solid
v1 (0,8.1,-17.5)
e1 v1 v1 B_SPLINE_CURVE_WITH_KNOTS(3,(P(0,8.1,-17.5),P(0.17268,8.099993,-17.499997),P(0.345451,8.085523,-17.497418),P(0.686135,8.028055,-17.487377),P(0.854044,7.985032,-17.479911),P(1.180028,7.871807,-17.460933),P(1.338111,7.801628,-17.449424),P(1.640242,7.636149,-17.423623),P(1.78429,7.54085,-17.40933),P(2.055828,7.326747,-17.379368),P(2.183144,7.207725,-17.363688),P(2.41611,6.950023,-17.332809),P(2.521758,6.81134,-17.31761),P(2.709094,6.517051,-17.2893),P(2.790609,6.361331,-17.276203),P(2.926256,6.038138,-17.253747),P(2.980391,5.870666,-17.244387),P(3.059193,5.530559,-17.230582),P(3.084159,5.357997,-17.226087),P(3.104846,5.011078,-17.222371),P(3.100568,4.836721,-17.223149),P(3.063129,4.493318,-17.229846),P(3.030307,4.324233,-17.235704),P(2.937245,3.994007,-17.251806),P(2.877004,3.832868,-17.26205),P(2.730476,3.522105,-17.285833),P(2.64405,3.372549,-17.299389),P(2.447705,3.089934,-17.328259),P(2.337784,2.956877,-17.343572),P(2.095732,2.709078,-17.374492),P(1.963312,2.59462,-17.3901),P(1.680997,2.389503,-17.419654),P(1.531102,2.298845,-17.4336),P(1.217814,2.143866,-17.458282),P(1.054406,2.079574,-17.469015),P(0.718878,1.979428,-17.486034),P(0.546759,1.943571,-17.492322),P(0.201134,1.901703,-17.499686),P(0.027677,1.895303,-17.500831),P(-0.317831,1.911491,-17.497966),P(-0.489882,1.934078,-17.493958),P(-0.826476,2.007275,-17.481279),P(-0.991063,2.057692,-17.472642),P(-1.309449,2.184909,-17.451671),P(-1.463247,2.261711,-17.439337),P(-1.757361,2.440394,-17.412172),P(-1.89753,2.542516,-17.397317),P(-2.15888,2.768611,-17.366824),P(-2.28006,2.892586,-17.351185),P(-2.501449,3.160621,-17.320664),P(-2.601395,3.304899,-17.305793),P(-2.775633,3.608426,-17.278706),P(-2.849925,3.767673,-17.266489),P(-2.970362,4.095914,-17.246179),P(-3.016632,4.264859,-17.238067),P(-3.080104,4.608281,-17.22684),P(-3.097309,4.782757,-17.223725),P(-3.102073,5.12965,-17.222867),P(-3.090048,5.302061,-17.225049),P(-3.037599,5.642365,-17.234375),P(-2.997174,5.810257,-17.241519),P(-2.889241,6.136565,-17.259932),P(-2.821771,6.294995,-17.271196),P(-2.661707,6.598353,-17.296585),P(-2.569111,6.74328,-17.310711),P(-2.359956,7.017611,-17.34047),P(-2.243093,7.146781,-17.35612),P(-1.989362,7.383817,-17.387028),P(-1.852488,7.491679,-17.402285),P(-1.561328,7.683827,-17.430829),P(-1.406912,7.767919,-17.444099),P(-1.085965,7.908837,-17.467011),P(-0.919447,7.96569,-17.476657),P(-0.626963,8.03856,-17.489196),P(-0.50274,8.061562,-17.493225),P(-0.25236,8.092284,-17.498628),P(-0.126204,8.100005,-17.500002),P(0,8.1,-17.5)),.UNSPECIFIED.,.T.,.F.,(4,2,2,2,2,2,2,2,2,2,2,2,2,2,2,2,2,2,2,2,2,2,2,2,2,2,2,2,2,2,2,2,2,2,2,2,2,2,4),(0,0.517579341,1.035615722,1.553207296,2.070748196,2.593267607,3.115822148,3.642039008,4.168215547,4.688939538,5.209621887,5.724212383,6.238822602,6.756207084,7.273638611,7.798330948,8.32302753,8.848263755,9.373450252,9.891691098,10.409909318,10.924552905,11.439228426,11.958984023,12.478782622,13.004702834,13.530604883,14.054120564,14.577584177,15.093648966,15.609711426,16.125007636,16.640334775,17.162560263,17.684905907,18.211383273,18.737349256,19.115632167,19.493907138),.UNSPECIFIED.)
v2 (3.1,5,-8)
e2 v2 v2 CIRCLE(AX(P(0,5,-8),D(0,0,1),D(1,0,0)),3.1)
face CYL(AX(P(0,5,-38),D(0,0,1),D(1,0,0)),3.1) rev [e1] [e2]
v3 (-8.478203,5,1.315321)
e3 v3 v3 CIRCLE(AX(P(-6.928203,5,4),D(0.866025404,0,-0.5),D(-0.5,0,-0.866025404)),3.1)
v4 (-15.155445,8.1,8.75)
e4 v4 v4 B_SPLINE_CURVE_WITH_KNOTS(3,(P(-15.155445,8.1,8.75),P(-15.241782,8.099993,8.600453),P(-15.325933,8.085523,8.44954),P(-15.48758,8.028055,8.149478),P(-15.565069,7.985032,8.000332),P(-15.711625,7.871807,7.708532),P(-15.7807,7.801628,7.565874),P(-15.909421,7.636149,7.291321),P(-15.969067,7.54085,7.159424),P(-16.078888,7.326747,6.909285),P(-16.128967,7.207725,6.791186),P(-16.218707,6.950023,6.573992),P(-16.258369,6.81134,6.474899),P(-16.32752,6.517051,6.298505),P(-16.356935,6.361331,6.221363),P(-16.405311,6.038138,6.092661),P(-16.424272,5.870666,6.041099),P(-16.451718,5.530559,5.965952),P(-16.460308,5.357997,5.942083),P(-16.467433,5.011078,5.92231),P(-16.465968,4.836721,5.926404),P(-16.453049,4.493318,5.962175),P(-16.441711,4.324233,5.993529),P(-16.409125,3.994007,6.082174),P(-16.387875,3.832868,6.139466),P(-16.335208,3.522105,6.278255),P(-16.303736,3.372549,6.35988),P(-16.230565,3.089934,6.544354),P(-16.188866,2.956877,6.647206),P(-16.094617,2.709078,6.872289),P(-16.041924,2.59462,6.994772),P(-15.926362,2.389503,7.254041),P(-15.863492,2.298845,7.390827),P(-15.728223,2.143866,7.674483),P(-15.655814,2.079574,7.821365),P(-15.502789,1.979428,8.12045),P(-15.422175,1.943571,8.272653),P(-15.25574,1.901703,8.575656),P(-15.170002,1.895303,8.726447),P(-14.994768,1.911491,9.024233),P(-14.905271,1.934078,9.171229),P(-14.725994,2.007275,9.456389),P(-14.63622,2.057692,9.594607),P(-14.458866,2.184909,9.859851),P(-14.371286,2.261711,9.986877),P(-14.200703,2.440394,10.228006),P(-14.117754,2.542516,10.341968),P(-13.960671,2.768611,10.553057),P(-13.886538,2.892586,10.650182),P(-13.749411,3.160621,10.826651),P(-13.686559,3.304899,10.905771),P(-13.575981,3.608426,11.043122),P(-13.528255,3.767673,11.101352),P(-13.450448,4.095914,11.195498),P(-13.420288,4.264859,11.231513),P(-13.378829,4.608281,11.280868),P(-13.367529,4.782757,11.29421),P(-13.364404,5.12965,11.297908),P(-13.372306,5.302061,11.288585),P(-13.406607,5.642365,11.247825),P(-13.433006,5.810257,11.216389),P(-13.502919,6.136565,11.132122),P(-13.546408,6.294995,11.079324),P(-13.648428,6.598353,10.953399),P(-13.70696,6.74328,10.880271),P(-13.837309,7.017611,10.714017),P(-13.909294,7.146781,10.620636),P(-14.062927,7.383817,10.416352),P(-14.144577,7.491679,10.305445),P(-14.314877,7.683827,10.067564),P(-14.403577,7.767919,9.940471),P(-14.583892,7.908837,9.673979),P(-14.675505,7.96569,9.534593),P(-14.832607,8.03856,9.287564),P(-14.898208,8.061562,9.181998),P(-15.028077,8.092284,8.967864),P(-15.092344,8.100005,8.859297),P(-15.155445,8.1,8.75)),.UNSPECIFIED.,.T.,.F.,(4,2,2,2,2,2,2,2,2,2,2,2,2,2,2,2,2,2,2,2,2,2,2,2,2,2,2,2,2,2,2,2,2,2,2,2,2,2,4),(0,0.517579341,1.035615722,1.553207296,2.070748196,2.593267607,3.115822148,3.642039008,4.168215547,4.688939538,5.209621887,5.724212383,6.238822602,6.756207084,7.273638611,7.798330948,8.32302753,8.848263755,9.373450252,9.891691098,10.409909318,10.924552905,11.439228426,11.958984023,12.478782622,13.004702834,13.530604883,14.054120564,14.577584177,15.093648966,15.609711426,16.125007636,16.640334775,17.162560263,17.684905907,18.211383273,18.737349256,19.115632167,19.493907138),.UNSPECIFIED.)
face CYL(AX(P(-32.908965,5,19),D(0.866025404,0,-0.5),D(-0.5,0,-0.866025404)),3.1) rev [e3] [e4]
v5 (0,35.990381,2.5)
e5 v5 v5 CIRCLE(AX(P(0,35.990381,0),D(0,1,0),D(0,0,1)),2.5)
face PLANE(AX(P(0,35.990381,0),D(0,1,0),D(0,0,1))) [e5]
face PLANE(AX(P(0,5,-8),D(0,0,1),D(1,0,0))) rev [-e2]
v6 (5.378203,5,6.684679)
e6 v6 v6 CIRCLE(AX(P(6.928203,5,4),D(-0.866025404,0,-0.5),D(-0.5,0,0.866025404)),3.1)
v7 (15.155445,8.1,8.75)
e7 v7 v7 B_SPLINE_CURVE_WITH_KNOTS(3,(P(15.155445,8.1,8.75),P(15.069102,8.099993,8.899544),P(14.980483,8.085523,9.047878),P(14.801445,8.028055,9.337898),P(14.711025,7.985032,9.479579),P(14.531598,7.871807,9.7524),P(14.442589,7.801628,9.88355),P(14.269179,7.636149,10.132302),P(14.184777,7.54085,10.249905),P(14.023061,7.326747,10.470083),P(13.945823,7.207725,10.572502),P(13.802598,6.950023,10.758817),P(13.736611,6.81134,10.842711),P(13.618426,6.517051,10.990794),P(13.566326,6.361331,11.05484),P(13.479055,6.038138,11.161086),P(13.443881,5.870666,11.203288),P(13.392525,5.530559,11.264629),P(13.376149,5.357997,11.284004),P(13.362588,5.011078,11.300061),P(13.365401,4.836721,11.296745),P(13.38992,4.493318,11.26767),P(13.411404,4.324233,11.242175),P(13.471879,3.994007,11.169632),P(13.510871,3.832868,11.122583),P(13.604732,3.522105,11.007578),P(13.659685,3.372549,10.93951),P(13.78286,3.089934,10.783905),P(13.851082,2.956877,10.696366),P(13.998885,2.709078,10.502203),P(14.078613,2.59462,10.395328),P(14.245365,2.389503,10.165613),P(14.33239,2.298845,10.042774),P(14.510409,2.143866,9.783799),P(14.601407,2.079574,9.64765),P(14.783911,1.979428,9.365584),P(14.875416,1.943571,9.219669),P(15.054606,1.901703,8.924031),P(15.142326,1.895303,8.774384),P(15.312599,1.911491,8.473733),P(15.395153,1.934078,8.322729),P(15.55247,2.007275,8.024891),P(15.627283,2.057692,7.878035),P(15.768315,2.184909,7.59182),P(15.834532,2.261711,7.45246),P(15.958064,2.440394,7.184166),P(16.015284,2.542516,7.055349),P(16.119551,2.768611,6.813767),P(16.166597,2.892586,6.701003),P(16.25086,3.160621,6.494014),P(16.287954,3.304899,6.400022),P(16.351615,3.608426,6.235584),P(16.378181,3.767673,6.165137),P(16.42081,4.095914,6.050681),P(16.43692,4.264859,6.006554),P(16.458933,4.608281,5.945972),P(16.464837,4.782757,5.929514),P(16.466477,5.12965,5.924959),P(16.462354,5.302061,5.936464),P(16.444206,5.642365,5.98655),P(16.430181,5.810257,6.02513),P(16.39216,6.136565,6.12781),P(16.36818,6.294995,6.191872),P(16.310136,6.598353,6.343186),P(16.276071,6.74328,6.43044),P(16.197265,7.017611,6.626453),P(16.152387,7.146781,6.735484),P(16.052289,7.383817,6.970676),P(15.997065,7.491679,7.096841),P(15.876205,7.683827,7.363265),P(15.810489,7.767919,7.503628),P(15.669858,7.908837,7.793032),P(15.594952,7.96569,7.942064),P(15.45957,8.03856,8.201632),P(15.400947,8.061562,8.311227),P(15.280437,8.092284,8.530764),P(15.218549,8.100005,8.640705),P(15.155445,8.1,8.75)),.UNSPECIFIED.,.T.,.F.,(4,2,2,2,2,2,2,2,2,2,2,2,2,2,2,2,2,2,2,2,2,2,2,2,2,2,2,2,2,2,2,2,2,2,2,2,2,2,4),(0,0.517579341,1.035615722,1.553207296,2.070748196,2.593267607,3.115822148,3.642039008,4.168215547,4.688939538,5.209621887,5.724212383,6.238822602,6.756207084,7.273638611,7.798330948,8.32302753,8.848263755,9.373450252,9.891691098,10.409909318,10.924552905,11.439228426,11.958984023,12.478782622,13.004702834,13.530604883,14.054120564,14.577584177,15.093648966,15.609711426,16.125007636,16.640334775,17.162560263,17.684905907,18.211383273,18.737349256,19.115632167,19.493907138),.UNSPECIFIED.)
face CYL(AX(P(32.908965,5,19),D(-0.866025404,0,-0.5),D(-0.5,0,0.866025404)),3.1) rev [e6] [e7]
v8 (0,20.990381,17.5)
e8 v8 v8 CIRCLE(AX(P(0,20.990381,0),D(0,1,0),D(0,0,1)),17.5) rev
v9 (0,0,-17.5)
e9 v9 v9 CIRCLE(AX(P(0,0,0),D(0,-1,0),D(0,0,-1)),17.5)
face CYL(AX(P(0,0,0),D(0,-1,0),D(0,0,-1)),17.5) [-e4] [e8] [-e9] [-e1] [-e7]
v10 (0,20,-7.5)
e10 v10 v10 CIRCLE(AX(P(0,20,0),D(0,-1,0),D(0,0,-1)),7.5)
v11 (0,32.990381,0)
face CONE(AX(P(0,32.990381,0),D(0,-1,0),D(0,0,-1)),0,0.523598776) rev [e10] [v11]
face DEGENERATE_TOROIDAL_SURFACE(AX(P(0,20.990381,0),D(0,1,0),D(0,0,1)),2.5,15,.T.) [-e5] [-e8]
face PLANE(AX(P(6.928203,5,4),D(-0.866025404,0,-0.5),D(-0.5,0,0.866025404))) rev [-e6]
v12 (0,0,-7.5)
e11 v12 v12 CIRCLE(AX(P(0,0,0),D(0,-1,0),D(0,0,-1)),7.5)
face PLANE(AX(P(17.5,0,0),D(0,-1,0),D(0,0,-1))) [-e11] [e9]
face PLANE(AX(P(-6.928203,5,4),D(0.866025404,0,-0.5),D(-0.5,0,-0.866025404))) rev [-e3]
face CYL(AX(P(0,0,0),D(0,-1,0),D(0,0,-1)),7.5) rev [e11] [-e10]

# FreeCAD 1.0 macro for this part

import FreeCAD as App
import Part
import Sketcher
from FreeCAD import Vector
Q = App.Units.Quantity


def edges_at(feature, points):
    """Names of the edges that pass closest to the given points."""
    edges = feature.Shape.Edges
    near = lambda p: min(range(len(edges)), key=lambda i: edges[i].distToShape(Part.Vertex(*p))[0])
    return sorted({f"Edge{near(p) + 1}" for p in points})


def add_polygon(sketch, points):
    """Adds a closed chain of lines whose ends are joined by coincident constraints."""
    first, n = sketch.GeometryCount, len(points)
    for a, b in zip(points, points[1:] + points[:1]):
        sketch.addGeometry(Part.LineSegment(App.Vector(*a, 0), App.Vector(*b, 0)), False)
    for i in range(n):
        sketch.addConstraint(Sketcher.Constraint("Coincident", first + i, 2, first + (i + 1) % n, 1))

doc = App.newDocument("Part")
body = doc.addObject("PartDesign::Body", "Body")

sketch1 = body.newObject("Sketcher::SketchObject", "Sketch")
sketch1.AttachmentSupport = (doc.getObject("XY_Plane"), [""])
sketch1.MapMode = "FlatFace"
add_polygon(sketch1, [(0, 32.990381), (7.5, 20), (7.5, 0), (17.5, 0), (17.5, 35.990381), (0, 35.990381)])
sketch1.addConstraint([
    Sketcher.Constraint("Vertical", 1),
    Sketcher.Constraint("Horizontal", 2),
    Sketcher.Constraint("Vertical", 3),
    Sketcher.Constraint("Horizontal", 4),
    Sketcher.Constraint("Vertical", 5),
    Sketcher.Constraint("PointOnObject", 1, 2, -1),
    Sketcher.Constraint("PointOnObject", 4, 2, -2),
    Sketcher.Constraint("DistanceX", 2, 1, 2, 2, 10.0),
    Sketcher.Constraint("DistanceY", 1, 2, 1, 1, 20.0),
    Sketcher.Constraint("DistanceY", 5, 2, 5, 1, 3.0),
    Sketcher.Constraint("Angle", 0, Q("-60 deg")),
    Sketcher.Constraint("Distance", 0, 15.0),
])
revolution = body.newObject("PartDesign::Revolution", "Revolution")
revolution.Profile = sketch1
revolution.ReferenceAxis = (sketch1, ["V_Axis"])
revolution.Angle = 360

sketch2 = body.newObject("Sketcher::SketchObject", "Sketch001")
sketch2.AttachmentSupport = (doc.getObject("XY_Plane"), [""])
sketch2.MapMode = "FlatFace"
sketch2.AttachmentOffset = App.Placement(Vector(0, 0, -8), App.Rotation())
sketch2.addGeometry(Part.Circle(Vector(0, 5, 0), Vector(0, 0, 1), 3.1), False)
sketch2.addConstraint([
    Sketcher.Constraint("PointOnObject", 0, 3, -2),
    Sketcher.Constraint("Diameter", 0, 6.2),
    Sketcher.Constraint("DistanceY", -1, 1, 0, 3, 5.0),
])
pocket1 = body.newObject("PartDesign::Pocket", "Pocket")
pocket1.Profile = sketch2
pocket1.Length = 30
doc.recompute()

polarpattern = body.newObject("PartDesign::PolarPattern", "PolarPattern")
polarpattern.Originals = [pocket1]
polarpattern.Axis = (doc.getObject("Y_Axis"), [""])
polarpattern.Angle = 360
polarpattern.Occurrences = 3
body.Tip = polarpattern
doc.recompute()

fillet = body.newObject("PartDesign::Fillet", "Fillet")
fillet.Base = (polarpattern, edges_at(polarpattern, [(0, 35.99, 17.5)]))
fillet.Radius = 15

doc.recompute()
